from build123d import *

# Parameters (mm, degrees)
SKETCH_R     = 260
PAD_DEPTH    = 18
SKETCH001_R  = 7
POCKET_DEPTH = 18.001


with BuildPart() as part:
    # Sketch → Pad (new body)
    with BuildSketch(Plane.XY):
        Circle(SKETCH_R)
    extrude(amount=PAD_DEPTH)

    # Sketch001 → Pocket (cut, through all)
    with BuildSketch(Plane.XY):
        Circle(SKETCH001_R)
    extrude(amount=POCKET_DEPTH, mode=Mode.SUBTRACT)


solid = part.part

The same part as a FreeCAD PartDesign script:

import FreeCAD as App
import Part
import Sketcher

doc = App.newDocument("Part")
body = doc.addObject("PartDesign::Body", "Body")

# Sketch on XY plane
sketch1 = body.newObject("Sketcher::SketchObject", "Sketch")
sketch1.AttachmentSupport = (doc.getObject("XY_Plane"), [""])
sketch1.MapMode = "FlatFace"
sketch1.addGeometry(Part.Circle(App.Vector(0, 0, 0), App.Vector(0, 0, 1), 260), False)
sketch1.addConstraint([
    Sketcher.Constraint("Coincident", 0, 3, -1, 1),
    Sketcher.Constraint("Diameter", 0, 520.0),
])
pad1 = body.newObject("PartDesign::Pad", "Pad")
pad1.Profile = sketch1
pad1.Length = 18

# Sketch on XY plane
sketch2 = body.newObject("Sketcher::SketchObject", "Sketch001")
sketch2.AttachmentSupport = (doc.getObject("XY_Plane"), [""])
sketch2.MapMode = "FlatFace"
sketch2.addGeometry(Part.Circle(App.Vector(0, 0, 0), App.Vector(0, 0, 1), 7), False)
sketch2.addConstraint([
    Sketcher.Constraint("Coincident", 0, 3, -1, 1),
    Sketcher.Constraint("Diameter", 0, 14.0),
])
pocket1 = body.newObject("PartDesign::Pocket", "Pocket")
pocket1.Profile = sketch2
pocket1.Type = "ThroughAll"
pocket1.Reversed = True

doc.recompute()
